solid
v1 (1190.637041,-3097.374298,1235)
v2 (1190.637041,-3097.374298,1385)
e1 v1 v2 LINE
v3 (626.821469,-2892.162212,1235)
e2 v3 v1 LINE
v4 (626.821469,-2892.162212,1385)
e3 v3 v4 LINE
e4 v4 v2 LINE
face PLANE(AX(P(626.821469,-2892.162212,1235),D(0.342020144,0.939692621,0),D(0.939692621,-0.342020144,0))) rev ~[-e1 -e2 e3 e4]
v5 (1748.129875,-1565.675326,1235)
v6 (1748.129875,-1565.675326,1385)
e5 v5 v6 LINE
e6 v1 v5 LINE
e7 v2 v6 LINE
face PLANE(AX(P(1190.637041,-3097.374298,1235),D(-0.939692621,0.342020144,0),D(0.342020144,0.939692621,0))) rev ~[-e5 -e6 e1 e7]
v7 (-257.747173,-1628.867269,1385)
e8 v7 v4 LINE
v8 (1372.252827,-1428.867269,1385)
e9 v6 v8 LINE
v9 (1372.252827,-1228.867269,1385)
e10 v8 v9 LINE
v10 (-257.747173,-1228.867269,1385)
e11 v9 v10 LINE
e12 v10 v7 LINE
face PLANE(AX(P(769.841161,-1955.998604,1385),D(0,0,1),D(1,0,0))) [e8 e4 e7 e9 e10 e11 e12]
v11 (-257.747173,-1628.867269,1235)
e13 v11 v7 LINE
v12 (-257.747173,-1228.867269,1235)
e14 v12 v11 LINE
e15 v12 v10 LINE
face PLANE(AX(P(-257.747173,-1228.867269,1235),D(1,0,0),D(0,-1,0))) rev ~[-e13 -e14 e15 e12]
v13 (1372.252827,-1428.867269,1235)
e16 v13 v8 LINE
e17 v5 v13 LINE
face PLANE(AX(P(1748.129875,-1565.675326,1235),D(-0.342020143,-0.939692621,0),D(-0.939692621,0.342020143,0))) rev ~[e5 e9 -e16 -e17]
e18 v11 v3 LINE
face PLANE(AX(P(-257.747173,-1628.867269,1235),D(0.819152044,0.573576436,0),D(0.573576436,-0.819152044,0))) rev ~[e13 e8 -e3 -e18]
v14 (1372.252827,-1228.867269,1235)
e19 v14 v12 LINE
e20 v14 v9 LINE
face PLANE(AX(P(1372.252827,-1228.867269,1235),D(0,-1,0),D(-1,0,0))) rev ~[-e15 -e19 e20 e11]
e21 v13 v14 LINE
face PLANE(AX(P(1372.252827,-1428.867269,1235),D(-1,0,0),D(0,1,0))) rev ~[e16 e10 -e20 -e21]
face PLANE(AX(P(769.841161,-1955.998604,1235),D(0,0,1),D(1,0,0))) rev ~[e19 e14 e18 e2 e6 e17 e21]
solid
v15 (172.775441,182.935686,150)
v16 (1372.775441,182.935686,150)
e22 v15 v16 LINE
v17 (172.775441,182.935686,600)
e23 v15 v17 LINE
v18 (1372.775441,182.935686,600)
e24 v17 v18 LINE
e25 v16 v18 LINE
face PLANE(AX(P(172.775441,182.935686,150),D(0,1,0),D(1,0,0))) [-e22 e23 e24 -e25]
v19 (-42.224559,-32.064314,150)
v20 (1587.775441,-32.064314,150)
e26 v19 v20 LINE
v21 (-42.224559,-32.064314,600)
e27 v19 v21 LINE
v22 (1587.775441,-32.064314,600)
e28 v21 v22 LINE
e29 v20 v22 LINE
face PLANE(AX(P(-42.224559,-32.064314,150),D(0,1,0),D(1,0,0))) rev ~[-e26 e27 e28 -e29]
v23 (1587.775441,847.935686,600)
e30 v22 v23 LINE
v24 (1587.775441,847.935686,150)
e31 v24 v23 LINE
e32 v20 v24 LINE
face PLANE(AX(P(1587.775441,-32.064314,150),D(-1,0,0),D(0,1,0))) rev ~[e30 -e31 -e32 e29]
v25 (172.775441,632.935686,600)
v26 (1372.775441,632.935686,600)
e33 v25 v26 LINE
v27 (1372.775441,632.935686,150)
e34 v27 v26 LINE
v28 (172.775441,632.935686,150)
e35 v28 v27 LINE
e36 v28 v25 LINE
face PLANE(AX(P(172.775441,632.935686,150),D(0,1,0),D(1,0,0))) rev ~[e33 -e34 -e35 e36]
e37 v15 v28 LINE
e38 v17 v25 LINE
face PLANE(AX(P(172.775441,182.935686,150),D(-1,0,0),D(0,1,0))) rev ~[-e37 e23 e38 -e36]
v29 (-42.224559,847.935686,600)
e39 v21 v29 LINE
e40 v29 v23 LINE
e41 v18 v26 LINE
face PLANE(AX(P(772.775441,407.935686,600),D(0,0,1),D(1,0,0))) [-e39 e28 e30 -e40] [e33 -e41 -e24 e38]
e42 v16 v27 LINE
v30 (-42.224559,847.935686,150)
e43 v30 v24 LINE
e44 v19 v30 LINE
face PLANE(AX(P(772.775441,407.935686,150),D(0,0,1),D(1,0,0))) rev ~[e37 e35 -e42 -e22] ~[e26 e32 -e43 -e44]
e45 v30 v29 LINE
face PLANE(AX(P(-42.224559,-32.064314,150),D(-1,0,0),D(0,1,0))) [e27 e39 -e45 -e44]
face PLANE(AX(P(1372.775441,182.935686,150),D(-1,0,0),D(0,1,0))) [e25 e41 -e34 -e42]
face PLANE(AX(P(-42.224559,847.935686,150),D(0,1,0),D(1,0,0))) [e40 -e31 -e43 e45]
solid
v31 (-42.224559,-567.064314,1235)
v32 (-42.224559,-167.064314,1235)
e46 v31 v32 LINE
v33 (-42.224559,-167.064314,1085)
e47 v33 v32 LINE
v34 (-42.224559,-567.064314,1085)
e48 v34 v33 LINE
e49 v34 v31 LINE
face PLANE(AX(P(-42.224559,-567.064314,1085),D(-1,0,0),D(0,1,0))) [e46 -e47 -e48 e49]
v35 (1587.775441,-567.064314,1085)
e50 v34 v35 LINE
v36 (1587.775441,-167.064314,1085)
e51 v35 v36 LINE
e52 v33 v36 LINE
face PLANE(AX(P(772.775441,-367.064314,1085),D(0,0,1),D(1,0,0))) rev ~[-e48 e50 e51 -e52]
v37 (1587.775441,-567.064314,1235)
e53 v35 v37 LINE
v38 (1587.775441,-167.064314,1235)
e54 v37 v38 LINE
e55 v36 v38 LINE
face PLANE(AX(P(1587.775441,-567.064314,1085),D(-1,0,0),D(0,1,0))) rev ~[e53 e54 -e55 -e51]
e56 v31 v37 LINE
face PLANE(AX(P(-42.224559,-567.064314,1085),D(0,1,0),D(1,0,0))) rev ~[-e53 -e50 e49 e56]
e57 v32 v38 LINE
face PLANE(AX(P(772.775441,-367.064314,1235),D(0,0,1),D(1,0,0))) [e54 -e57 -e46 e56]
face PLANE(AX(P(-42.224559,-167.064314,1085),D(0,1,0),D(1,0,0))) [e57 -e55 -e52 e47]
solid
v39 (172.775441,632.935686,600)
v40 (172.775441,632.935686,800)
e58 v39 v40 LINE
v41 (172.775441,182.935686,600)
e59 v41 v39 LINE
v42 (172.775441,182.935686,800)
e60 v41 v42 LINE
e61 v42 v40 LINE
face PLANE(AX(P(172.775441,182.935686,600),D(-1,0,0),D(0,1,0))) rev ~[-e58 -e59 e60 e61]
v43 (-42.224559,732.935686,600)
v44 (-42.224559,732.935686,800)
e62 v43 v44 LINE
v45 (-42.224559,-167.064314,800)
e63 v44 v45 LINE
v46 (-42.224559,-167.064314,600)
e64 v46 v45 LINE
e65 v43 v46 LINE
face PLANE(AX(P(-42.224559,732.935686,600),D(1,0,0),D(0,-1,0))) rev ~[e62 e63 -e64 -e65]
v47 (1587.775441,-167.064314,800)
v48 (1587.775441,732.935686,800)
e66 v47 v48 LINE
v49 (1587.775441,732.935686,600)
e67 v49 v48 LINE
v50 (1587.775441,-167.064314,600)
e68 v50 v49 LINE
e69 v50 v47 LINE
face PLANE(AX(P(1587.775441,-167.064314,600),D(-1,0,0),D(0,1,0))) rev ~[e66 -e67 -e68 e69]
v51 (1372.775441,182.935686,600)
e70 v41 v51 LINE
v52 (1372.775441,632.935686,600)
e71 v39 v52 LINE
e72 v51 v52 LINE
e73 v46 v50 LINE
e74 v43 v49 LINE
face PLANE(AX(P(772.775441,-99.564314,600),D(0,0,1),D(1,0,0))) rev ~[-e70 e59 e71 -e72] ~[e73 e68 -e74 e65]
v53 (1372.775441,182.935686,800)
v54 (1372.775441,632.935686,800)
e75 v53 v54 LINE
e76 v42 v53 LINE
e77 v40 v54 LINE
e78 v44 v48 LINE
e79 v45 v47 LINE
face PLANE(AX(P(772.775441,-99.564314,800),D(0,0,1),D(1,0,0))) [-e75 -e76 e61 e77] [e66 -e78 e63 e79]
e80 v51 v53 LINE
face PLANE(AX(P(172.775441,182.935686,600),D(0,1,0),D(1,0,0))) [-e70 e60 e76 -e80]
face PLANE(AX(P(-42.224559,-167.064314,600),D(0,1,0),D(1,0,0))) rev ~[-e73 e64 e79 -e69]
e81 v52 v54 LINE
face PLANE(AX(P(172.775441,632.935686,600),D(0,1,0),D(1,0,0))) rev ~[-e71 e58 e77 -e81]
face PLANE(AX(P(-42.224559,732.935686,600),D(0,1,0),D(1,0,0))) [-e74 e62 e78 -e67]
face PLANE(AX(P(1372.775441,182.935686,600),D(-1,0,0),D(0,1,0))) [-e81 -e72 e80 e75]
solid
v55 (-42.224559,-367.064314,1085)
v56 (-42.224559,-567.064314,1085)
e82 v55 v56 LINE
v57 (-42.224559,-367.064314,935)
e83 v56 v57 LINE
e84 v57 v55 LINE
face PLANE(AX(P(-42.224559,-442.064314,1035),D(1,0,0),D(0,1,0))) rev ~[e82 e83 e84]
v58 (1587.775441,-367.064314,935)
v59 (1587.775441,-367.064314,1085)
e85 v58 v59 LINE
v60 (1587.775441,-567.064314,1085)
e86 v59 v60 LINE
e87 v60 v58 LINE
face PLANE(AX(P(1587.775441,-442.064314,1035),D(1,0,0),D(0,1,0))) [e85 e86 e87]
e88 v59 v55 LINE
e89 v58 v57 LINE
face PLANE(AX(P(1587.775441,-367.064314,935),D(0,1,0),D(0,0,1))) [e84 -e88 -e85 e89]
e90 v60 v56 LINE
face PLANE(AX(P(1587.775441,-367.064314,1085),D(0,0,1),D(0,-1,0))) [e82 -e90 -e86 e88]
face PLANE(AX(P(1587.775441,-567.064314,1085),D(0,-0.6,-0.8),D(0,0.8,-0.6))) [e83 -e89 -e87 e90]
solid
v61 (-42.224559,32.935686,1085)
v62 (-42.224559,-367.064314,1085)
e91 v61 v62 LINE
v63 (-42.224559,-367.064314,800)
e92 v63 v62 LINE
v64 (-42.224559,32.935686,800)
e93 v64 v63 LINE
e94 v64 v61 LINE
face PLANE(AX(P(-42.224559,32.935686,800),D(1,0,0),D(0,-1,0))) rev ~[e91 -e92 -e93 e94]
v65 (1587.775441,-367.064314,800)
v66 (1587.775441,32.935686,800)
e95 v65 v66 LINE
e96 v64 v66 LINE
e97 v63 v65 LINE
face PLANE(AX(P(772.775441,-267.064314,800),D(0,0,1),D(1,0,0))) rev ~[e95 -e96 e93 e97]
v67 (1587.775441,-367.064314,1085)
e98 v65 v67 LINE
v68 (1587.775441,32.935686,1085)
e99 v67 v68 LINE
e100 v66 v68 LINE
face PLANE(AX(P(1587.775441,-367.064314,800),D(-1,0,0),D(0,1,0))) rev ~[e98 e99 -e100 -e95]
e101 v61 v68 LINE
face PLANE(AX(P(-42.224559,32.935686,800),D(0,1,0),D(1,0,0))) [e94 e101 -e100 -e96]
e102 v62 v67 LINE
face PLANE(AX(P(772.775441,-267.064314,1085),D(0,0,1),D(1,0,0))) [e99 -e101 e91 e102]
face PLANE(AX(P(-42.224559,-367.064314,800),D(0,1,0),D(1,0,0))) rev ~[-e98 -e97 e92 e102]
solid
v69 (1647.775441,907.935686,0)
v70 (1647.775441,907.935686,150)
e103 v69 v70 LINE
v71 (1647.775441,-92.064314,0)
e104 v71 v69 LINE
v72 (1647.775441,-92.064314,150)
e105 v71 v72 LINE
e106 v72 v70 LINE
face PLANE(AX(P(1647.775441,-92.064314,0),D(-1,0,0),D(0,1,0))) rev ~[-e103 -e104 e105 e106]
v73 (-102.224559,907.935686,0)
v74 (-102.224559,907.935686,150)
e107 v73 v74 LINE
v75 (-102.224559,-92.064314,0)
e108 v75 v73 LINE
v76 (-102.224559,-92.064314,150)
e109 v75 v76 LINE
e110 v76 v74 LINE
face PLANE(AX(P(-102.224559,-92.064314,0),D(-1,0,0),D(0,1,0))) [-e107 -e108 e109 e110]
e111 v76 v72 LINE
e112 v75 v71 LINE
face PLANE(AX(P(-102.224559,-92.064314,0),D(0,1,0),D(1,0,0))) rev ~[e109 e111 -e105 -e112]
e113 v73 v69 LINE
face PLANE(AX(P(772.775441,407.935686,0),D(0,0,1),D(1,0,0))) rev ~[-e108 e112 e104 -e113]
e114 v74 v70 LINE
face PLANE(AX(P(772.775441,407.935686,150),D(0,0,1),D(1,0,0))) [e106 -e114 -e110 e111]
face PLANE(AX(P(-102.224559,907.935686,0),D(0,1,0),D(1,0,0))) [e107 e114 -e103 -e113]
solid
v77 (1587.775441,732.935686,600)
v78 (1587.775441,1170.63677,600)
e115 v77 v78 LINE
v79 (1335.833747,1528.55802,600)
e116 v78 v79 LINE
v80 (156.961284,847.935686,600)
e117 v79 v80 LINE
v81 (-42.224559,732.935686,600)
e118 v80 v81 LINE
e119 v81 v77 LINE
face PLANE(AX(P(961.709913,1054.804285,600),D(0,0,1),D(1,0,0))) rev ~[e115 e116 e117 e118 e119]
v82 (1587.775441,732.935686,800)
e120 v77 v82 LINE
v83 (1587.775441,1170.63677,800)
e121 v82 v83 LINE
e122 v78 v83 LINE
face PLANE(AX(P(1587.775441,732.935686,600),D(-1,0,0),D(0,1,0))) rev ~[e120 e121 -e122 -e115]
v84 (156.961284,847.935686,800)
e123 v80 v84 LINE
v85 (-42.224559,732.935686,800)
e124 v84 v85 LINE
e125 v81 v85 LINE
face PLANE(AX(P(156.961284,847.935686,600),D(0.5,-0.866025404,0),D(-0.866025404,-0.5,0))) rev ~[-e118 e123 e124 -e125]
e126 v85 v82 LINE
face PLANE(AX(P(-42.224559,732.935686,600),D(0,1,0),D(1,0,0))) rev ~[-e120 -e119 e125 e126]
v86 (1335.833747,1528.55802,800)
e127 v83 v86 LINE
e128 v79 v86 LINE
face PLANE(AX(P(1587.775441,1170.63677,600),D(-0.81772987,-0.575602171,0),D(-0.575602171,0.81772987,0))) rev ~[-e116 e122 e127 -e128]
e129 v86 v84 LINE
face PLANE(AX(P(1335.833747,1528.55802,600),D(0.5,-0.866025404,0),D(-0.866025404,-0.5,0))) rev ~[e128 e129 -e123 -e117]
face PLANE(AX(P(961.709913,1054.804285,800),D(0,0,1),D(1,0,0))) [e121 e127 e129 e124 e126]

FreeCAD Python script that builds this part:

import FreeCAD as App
import Part
import Sketcher
Q = App.Units.Quantity

doc = App.newDocument("Part")
params = doc.addObject("Spreadsheet::Sheet", "Params")
for row, (alias, value) in enumerate([
    ("sketch1_width", "1750 mm"),
    ("sketch1_height", "1000 mm"),
    ("pad1_length", "150 mm"),
    ("sketch2_width", "1630 mm"),
    ("sketch2_width2", "1200 mm"),
    ("sketch2_height", "880 mm"),
    ("sketch2_height2", "450 mm"),
    ("pad2_length", "450 mm"),
    ("sketch3_width", "1630 mm"),
    ("sketch3_width2", "1200 mm"),
    ("sketch3_height", "900 mm"),
    ("sketch3_height2", "450 mm"),
    ("pad3_length", "200 mm"),
    ("sketch4_width", "1630 mm"),
    ("sketch4_height", "400 mm"),
    ("pad4_length", "285 mm"),
    ("sketch5_width", "1630 mm"),
    ("sketch5_height", "400 mm"),
    ("pad5_length", "150 mm"),
    ("sketch6_width", "200 mm"),
    ("sketch6_height", "150 mm"),
    ("pad6_length", "1630 mm"),
    ("sketch7_width", "1630 mm"),
    ("sketch7_width2", "200 mm"),
    ("pad7_length", "150 mm"),
    ("sketch8_width", "1615 mm"),
    ("sketch8_height", "3045 mm"),
    ("pad8_length", "150 mm"),
    ("sketch9_width", "1630 mm"),
    ("sketch9_length", "230 mm"),
    ("pad9_length", "200 mm"),
    ("sketch10_width", "1630 mm"),
    ("sketch10_height", "200 mm"),
    ("sketch10_height2", "400 mm"),
    ("sketch10_length", "600 mm"),
    ("sketch10_length2", "1630 mm"),
    ("pad10_length", "150 mm"),
], start=1):
    params.set(f"A{row}", alias)
    params.set(f"B{row}", "=" + value)
    params.setAlias(f"B{row}", alias)

body = doc.addObject("PartDesign::Body", "Body")

sketch1 = body.newObject("Sketcher::SketchObject", "Sketch")
sketch1.AttachmentSupport = (doc.getObject("XY_Plane"), [""])
sketch1.MapMode = "FlatFace"
sketch1.addGeometry(Part.LineSegment(App.Vector(-102.224559, 907.935686, 0), App.Vector(-102.224559, -92.064314, 0)), False)
sketch1.addGeometry(Part.LineSegment(App.Vector(-102.224559, -92.064314, 0), App.Vector(1647.775441, -92.064314, 0)), False)
sketch1.addGeometry(Part.LineSegment(App.Vector(1647.775441, -92.064314, 0), App.Vector(1647.775441, 907.935686, 0)), False)
sketch1.addGeometry(Part.LineSegment(App.Vector(1647.775441, 907.935686, 0), App.Vector(-102.224559, 907.935686, 0)), False)
sketch1.addConstraint(Sketcher.Constraint("Coincident", 0, 2, 1, 1))
sketch1.addConstraint(Sketcher.Constraint("Coincident", 1, 2, 2, 1))
sketch1.addConstraint(Sketcher.Constraint("Coincident", 2, 2, 3, 1))
sketch1.addConstraint(Sketcher.Constraint("Coincident", 3, 2, 0, 1))
sketch1.addConstraint(Sketcher.Constraint("Vertical", 0))
sketch1.addConstraint(Sketcher.Constraint("Horizontal", 1))
sketch1.addConstraint(Sketcher.Constraint("Vertical", 2))
sketch1.addConstraint(Sketcher.Constraint("Horizontal", 3))
sketch1.addConstraint(Sketcher.Constraint("DistanceX", 1, 1, 1, 2, 1750.0))
sketch1.addConstraint(Sketcher.Constraint("DistanceY", 0, 2, 0, 1, 1000.0))
sketch1.addConstraint(Sketcher.Constraint("DistanceX", 0, 2, -1, 1, 102.224559))
sketch1.addConstraint(Sketcher.Constraint("DistanceY", 0, 2, -1, 1, 92.064314))
sketch1.setExpression("Constraints[8]", "Params.sketch1_width")
sketch1.setExpression("Constraints[9]", "Params.sketch1_height")
pad1 = body.newObject("PartDesign::Pad", "Pad")
pad1.Profile = sketch1
pad1.setExpression("Length", "Params.pad1_length")
body2 = doc.addObject("PartDesign::Body", "Body001")

sketch2 = body2.newObject("Sketcher::SketchObject", "Sketch001")
sketch2.AttachmentSupport = (doc.getObject("XY_Plane001"), [""])
sketch2.MapMode = "FlatFace"
sketch2.AttachmentOffset = App.Placement(App.Vector(0, 0, 150), App.Rotation())
sketch2.addGeometry(Part.LineSegment(App.Vector(-42.224559, 847.935686, 0), App.Vector(-42.224559, -32.064314, 0)), False)
sketch2.addGeometry(Part.LineSegment(App.Vector(-42.224559, -32.064314, 0), App.Vector(1587.775441, -32.064314, 0)), False)
sketch2.addGeometry(Part.LineSegment(App.Vector(1587.775441, -32.064314, 0), App.Vector(1587.775441, 847.935686, 0)), False)
sketch2.addGeometry(Part.LineSegment(App.Vector(1587.775441, 847.935686, 0), App.Vector(-42.224559, 847.935686, 0)), False)
sketch2.addGeometry(Part.LineSegment(App.Vector(1372.775441, 182.935686, 0), App.Vector(172.775441, 182.935686, 0)), False)
sketch2.addGeometry(Part.LineSegment(App.Vector(172.775441, 182.935686, 0), App.Vector(172.775441, 632.935686, 0)), False)
sketch2.addGeometry(Part.LineSegment(App.Vector(172.775441, 632.935686, 0), App.Vector(1372.775441, 632.935686, 0)), False)
sketch2.addGeometry(Part.LineSegment(App.Vector(1372.775441, 632.935686, 0), App.Vector(1372.775441, 182.935686, 0)), False)
sketch2.addConstraint(Sketcher.Constraint("Coincident", 0, 2, 1, 1))
sketch2.addConstraint(Sketcher.Constraint("Coincident", 1, 2, 2, 1))
sketch2.addConstraint(Sketcher.Constraint("Coincident", 2, 2, 3, 1))
sketch2.addConstraint(Sketcher.Constraint("Coincident", 3, 2, 0, 1))
sketch2.addConstraint(Sketcher.Constraint("Coincident", 4, 2, 5, 1))
sketch2.addConstraint(Sketcher.Constraint("Coincident", 5, 2, 6, 1))
sketch2.addConstraint(Sketcher.Constraint("Coincident", 6, 2, 7, 1))
sketch2.addConstraint(Sketcher.Constraint("Coincident", 7, 2, 4, 1))
sketch2.addConstraint(Sketcher.Constraint("Vertical", 0))
sketch2.addConstraint(Sketcher.Constraint("Horizontal", 1))
sketch2.addConstraint(Sketcher.Constraint("Vertical", 2))
sketch2.addConstraint(Sketcher.Constraint("Horizontal", 3))
sketch2.addConstraint(Sketcher.Constraint("Horizontal", 4))
sketch2.addConstraint(Sketcher.Constraint("Vertical", 5))
sketch2.addConstraint(Sketcher.Constraint("Horizontal", 6))
sketch2.addConstraint(Sketcher.Constraint("Vertical", 7))
sketch2.addConstraint(Sketcher.Constraint("DistanceX", 1, 1, 1, 2, 1630.0))
sketch2.addConstraint(Sketcher.Constraint("DistanceX", 4, 2, 4, 1, 1200.0))
sketch2.addConstraint(Sketcher.Constraint("DistanceY", 0, 2, 0, 1, 880.0))
sketch2.addConstraint(Sketcher.Constraint("DistanceY", 5, 1, 5, 2, 450.0))
sketch2.addConstraint(Sketcher.Constraint("DistanceX", 0, 2, 4, 2, 215.0))
sketch2.addConstraint(Sketcher.Constraint("DistanceY", 0, 2, 4, 2, 215.0))
sketch2.addConstraint(Sketcher.Constraint("DistanceX", 0, 2, -1, 1, 42.224559))
sketch2.addConstraint(Sketcher.Constraint("DistanceY", 0, 2, -1, 1, 32.064314))
sketch2.setExpression("Constraints[16]", "Params.sketch2_width")
sketch2.setExpression("Constraints[17]", "Params.sketch2_width2")
sketch2.setExpression("Constraints[18]", "Params.sketch2_height")
sketch2.setExpression("Constraints[19]", "Params.sketch2_height2")
pad2 = body2.newObject("PartDesign::Pad", "Pad001")
pad2.Profile = sketch2
pad2.setExpression("Length", "Params.pad2_length")
body3 = doc.addObject("PartDesign::Body", "Body002")

sketch3 = body3.newObject("Sketcher::SketchObject", "Sketch002")
sketch3.AttachmentSupport = (doc.getObject("XY_Plane002"), [""])
sketch3.MapMode = "FlatFace"
sketch3.AttachmentOffset = App.Placement(App.Vector(0, 0, 600), App.Rotation())
sketch3.addGeometry(Part.LineSegment(App.Vector(-42.224559, -167.064314, 0), App.Vector(1587.775441, -167.064314, 0)), False)
sketch3.addGeometry(Part.LineSegment(App.Vector(1587.775441, -167.064314, 0), App.Vector(1587.775441, 732.935686, 0)), False)
sketch3.addGeometry(Part.LineSegment(App.Vector(1587.775441, 732.935686, 0), App.Vector(-42.224559, 732.935686, 0)), False)
sketch3.addGeometry(Part.LineSegment(App.Vector(-42.224559, 732.935686, 0), App.Vector(-42.224559, -167.064314, 0)), False)
sketch3.addGeometry(Part.LineSegment(App.Vector(1372.775441, 182.935686, 0), App.Vector(172.775441, 182.935686, 0)), False)
sketch3.addGeometry(Part.LineSegment(App.Vector(172.775441, 182.935686, 0), App.Vector(172.775441, 632.935686, 0)), False)
sketch3.addGeometry(Part.LineSegment(App.Vector(172.775441, 632.935686, 0), App.Vector(1372.775441, 632.935686, 0)), False)
sketch3.addGeometry(Part.LineSegment(App.Vector(1372.775441, 632.935686, 0), App.Vector(1372.775441, 182.935686, 0)), False)
sketch3.addConstraint(Sketcher.Constraint("Coincident", 0, 2, 1, 1))
sketch3.addConstraint(Sketcher.Constraint("Coincident", 1, 2, 2, 1))
sketch3.addConstraint(Sketcher.Constraint("Coincident", 2, 2, 3, 1))
sketch3.addConstraint(Sketcher.Constraint("Coincident", 3, 2, 0, 1))
sketch3.addConstraint(Sketcher.Constraint("Coincident", 4, 2, 5, 1))
sketch3.addConstraint(Sketcher.Constraint("Coincident", 5, 2, 6, 1))
sketch3.addConstraint(Sketcher.Constraint("Coincident", 6, 2, 7, 1))
sketch3.addConstraint(Sketcher.Constraint("Coincident", 7, 2, 4, 1))
sketch3.addConstraint(Sketcher.Constraint("Horizontal", 0))
sketch3.addConstraint(Sketcher.Constraint("Vertical", 1))
sketch3.addConstraint(Sketcher.Constraint("Horizontal", 2))
sketch3.addConstraint(Sketcher.Constraint("Vertical", 3))
sketch3.addConstraint(Sketcher.Constraint("Horizontal", 4))
sketch3.addConstraint(Sketcher.Constraint("Vertical", 5))
sketch3.addConstraint(Sketcher.Constraint("Horizontal", 6))
sketch3.addConstraint(Sketcher.Constraint("Vertical", 7))
sketch3.addConstraint(Sketcher.Constraint("DistanceX", 0, 1, 0, 2, 1630.0))
sketch3.addConstraint(Sketcher.Constraint("DistanceX", 4, 2, 4, 1, 1200.0))
sketch3.addConstraint(Sketcher.Constraint("DistanceY", 1, 1, 1, 2, 900.0))
sketch3.addConstraint(Sketcher.Constraint("DistanceY", 5, 1, 5, 2, 450.0))
sketch3.addConstraint(Sketcher.Constraint("DistanceX", 3, 2, 4, 2, 215.0))
sketch3.addConstraint(Sketcher.Constraint("DistanceY", 3, 2, 4, 2, 350.0))
sketch3.addConstraint(Sketcher.Constraint("DistanceX", -1, 1, 0, 2, 1587.775441))
sketch3.addConstraint(Sketcher.Constraint("DistanceY", 0, 2, -1, 1, 167.064314))
sketch3.setExpression("Constraints[16]", "Params.sketch3_width")
sketch3.setExpression("Constraints[17]", "Params.sketch3_width2")
sketch3.setExpression("Constraints[18]", "Params.sketch3_height")
sketch3.setExpression("Constraints[19]", "Params.sketch3_height2")
pad3 = body3.newObject("PartDesign::Pad", "Pad002")
pad3.Profile = sketch3
pad3.setExpression("Length", "Params.pad3_length")
body4 = doc.addObject("PartDesign::Body", "Body003")

sketch4 = body4.newObject("Sketcher::SketchObject", "Sketch003")
sketch4.AttachmentSupport = (doc.getObject("XY_Plane003"), [""])
sketch4.MapMode = "FlatFace"
sketch4.AttachmentOffset = App.Placement(App.Vector(0, 0, 800), App.Rotation())
sketch4.addGeometry(Part.LineSegment(App.Vector(-42.224559, -367.064314, 0), App.Vector(1587.775441, -367.064314, 0)), False)
sketch4.addGeometry(Part.LineSegment(App.Vector(1587.775441, -367.064314, 0), App.Vector(1587.775441, 32.935686, 0)), False)
sketch4.addGeometry(Part.LineSegment(App.Vector(1587.775441, 32.935686, 0), App.Vector(-42.224559, 32.935686, 0)), False)
sketch4.addGeometry(Part.LineSegment(App.Vector(-42.224559, 32.935686, 0), App.Vector(-42.224559, -367.064314, 0)), False)
sketch4.addConstraint(Sketcher.Constraint("Coincident", 0, 2, 1, 1))
sketch4.addConstraint(Sketcher.Constraint("Coincident", 1, 2, 2, 1))
sketch4.addConstraint(Sketcher.Constraint("Coincident", 2, 2, 3, 1))
sketch4.addConstraint(Sketcher.Constraint("Coincident", 3, 2, 0, 1))
sketch4.addConstraint(Sketcher.Constraint("Horizontal", 0))
sketch4.addConstraint(Sketcher.Constraint("Vertical", 1))
sketch4.addConstraint(Sketcher.Constraint("Horizontal", 2))
sketch4.addConstraint(Sketcher.Constraint("Vertical", 3))
sketch4.addConstraint(Sketcher.Constraint("DistanceX", 0, 1, 0, 2, 1630.0))
sketch4.addConstraint(Sketcher.Constraint("DistanceY", 1, 1, 1, 2, 400.0))
sketch4.addConstraint(Sketcher.Constraint("DistanceX", -1, 1, 0, 2, 1587.775441))
sketch4.addConstraint(Sketcher.Constraint("DistanceY", 0, 2, -1, 1, 367.064314))
sketch4.setExpression("Constraints[8]", "Params.sketch4_width")
sketch4.setExpression("Constraints[9]", "Params.sketch4_height")
pad4 = body4.newObject("PartDesign::Pad", "Pad003")
pad4.Profile = sketch4
pad4.setExpression("Length", "Params.pad4_length")
body5 = doc.addObject("PartDesign::Body", "Body004")

sketch5 = body5.newObject("Sketcher::SketchObject", "Sketch004")
sketch5.AttachmentSupport = (doc.getObject("XY_Plane004"), [""])
sketch5.MapMode = "FlatFace"
sketch5.AttachmentOffset = App.Placement(App.Vector(0, 0, 1085), App.Rotation())
sketch5.addGeometry(Part.LineSegment(App.Vector(-42.224559, -167.064314, 0), App.Vector(-42.224559, -567.064314, 0)), False)
sketch5.addGeometry(Part.LineSegment(App.Vector(-42.224559, -567.064314, 0), App.Vector(1587.775441, -567.064314, 0)), False)
sketch5.addGeometry(Part.LineSegment(App.Vector(1587.775441, -567.064314, 0), App.Vector(1587.775441, -167.064314, 0)), False)
sketch5.addGeometry(Part.LineSegment(App.Vector(1587.775441, -167.064314, 0), App.Vector(-42.224559, -167.064314, 0)), False)
sketch5.addConstraint(Sketcher.Constraint("Coincident", 0, 2, 1, 1))
sketch5.addConstraint(Sketcher.Constraint("Coincident", 1, 2, 2, 1))
sketch5.addConstraint(Sketcher.Constraint("Coincident", 2, 2, 3, 1))
sketch5.addConstraint(Sketcher.Constraint("Coincident", 3, 2, 0, 1))
sketch5.addConstraint(Sketcher.Constraint("Vertical", 0))
sketch5.addConstraint(Sketcher.Constraint("Horizontal", 1))
sketch5.addConstraint(Sketcher.Constraint("Vertical", 2))
sketch5.addConstraint(Sketcher.Constraint("Horizontal", 3))
sketch5.addConstraint(Sketcher.Constraint("DistanceX", 1, 1, 1, 2, 1630.0))
sketch5.addConstraint(Sketcher.Constraint("DistanceY", 0, 2, 0, 1, 400.0))
sketch5.addConstraint(Sketcher.Constraint("DistanceX", 0, 2, -1, 1, 42.224559))
sketch5.addConstraint(Sketcher.Constraint("DistanceY", 0, 2, -1, 1, 567.064314))
sketch5.setExpression("Constraints[8]", "Params.sketch5_width")
sketch5.setExpression("Constraints[9]", "Params.sketch5_height")
pad5 = body5.newObject("PartDesign::Pad", "Pad004")
pad5.Profile = sketch5
pad5.setExpression("Length", "Params.pad5_length")
body6 = doc.addObject("PartDesign::Body", "Body005")

sketch6 = body6.newObject("Sketcher::SketchObject", "Sketch005")
sketch6.AttachmentSupport = (doc.getObject("YZ_Plane005"), [""])
sketch6.MapMode = "FlatFace"
sketch6.AttachmentOffset = App.Placement(App.Vector(0, 0, 1587.775441), App.Rotation())
sketch6.addGeometry(Part.LineSegment(App.Vector(-367.064314, 935, 0), App.Vector(-367.064314, 1085, 0)), False)
sketch6.addGeometry(Part.LineSegment(App.Vector(-367.064314, 1085, 0), App.Vector(-567.064314, 1085, 0)), False)
sketch6.addGeometry(Part.LineSegment(App.Vector(-567.064314, 1085, 0), App.Vector(-367.064314, 935, 0)), False)
sketch6.addConstraint(Sketcher.Constraint("Coincident", 0, 2, 1, 1))
sketch6.addConstraint(Sketcher.Constraint("Coincident", 1, 2, 2, 1))
sketch6.addConstraint(Sketcher.Constraint("Coincident", 2, 2, 0, 1))
sketch6.addConstraint(Sketcher.Constraint("Vertical", 0))
sketch6.addConstraint(Sketcher.Constraint("Horizontal", 1))
sketch6.addConstraint(Sketcher.Constraint("DistanceX", 1, 2, 1, 1, 200.0))
sketch6.addConstraint(Sketcher.Constraint("DistanceY", 0, 1, 0, 2, 150.0))
sketch6.addConstraint(Sketcher.Constraint("DistanceY", -1, 1, 0, 2, 1085.0))
sketch6.addConstraint(Sketcher.Constraint("DistanceX", 0, 2, -1, 1, 367.064314))
sketch6.setExpression("Constraints[5]", "Params.sketch6_width")
sketch6.setExpression("Constraints[6]", "Params.sketch6_height")
pad6 = body6.newObject("PartDesign::Pad", "Pad005")
pad6.Profile = sketch6
pad6.setExpression("Length", "Params.pad6_length")
pad6.Reversed = True
body7 = doc.addObject("PartDesign::Body", "Body006")

sketch7 = body7.newObject("Sketcher::SketchObject", "Sketch006")
sketch7.AttachmentSupport = (doc.getObject("XY_Plane006"), [""])
sketch7.MapMode = "FlatFace"
sketch7.AttachmentOffset = App.Placement(App.Vector(0, 0, 1235), App.Rotation())
sketch7.addGeometry(Part.LineSegment(App.Vector(1759.989725, -1001.661468, 0), App.Vector(129.989725, -1001.661468, 0)), False)
sketch7.addGeometry(Part.LineSegment(App.Vector(129.989725, -1001.661468, 0), App.Vector(129.989725, -1201.661468, 0)), False)
sketch7.addGeometry(Part.LineSegment(App.Vector(129.989725, -1201.661468, 0), App.Vector(-70.010275, -1201.661468, 0)), False)
sketch7.addGeometry(Part.LineSegment(App.Vector(-70.010275, -1201.661468, 0), App.Vector(-70.010275, -2831.661468, 0)), False)
sketch7.addGeometry(Part.LineSegment(App.Vector(-70.010275, -2831.661468, 0), App.Vector(1759.989725, -2831.661468, 0)), False)
sketch7.addGeometry(Part.LineSegment(App.Vector(1759.989725, -2831.661468, 0), App.Vector(1759.989725, -1001.661468, 0)), False)
sketch7.addConstraint(Sketcher.Constraint("Coincident", 0, 2, 1, 1))
sketch7.addConstraint(Sketcher.Constraint("Coincident", 1, 2, 2, 1))
sketch7.addConstraint(Sketcher.Constraint("Coincident", 2, 2, 3, 1))
sketch7.addConstraint(Sketcher.Constraint("Coincident", 3, 2, 4, 1))
sketch7.addConstraint(Sketcher.Constraint("Coincident", 4, 2, 5, 1))
sketch7.addConstraint(Sketcher.Constraint("Coincident", 5, 2, 0, 1))
sketch7.addConstraint(Sketcher.Constraint("Horizontal", 0))
sketch7.addConstraint(Sketcher.Constraint("Vertical", 1))
sketch7.addConstraint(Sketcher.Constraint("Horizontal", 2))
sketch7.addConstraint(Sketcher.Constraint("Vertical", 3))
sketch7.addConstraint(Sketcher.Constraint("Horizontal", 4))
sketch7.addConstraint(Sketcher.Constraint("Vertical", 5))
sketch7.addConstraint(Sketcher.Constraint("Equal", 2, 1))
sketch7.addConstraint(Sketcher.Constraint("Equal", 0, 3))
sketch7.addConstraint(Sketcher.Constraint("DistanceX", 0, 2, 0, 1, 1630.0))
sketch7.addConstraint(Sketcher.Constraint("DistanceX", 2, 2, 2, 1, 200.0))
sketch7.addConstraint(Sketcher.Constraint("DistanceY", 0, 2, -1, 1, 1001.661468))
sketch7.addConstraint(Sketcher.Constraint("DistanceX", -1, 1, 0, 2, 129.989725))
sketch7.setExpression("Constraints[14]", "Params.sketch7_width")
sketch7.setExpression("Constraints[15]", "Params.sketch7_width2")
pad7 = body7.newObject("PartDesign::Pad", "Pad006")
pad7.Profile = sketch7
pad7.setExpression("Length", "Params.pad7_length")
body8 = doc.addObject("PartDesign::Body", "Body007")

sketch8 = body8.newObject("Sketcher::SketchObject", "Sketch007")
sketch8.AttachmentSupport = (doc.getObject("XY_Plane007"), [""])
sketch8.MapMode = "FlatFace"
sketch8.AttachmentOffset = App.Placement(App.Vector(0, 0, 1385), App.Rotation())
sketch8.addGeometry(Part.LineSegment(App.Vector(-2078.78089, -1746.240692, 0), App.Vector(-2078.78089, -4791.240692, 0)), False)
sketch8.addGeometry(Part.LineSegment(App.Vector(-2078.78089, -4791.240692, 0), App.Vector(-463.78089, -4791.240692, 0)), False)
sketch8.addGeometry(Part.LineSegment(App.Vector(-463.78089, -4791.240692, 0), App.Vector(-463.78089, -1746.240692, 0)), False)
sketch8.addGeometry(Part.LineSegment(App.Vector(-463.78089, -1746.240692, 0), App.Vector(-2078.78089, -1746.240692, 0)), False)
sketch8.addConstraint(Sketcher.Constraint("Coincident", 0, 2, 1, 1))
sketch8.addConstraint(Sketcher.Constraint("Coincident", 1, 2, 2, 1))
sketch8.addConstraint(Sketcher.Constraint("Coincident", 2, 2, 3, 1))
sketch8.addConstraint(Sketcher.Constraint("Coincident", 3, 2, 0, 1))
sketch8.addConstraint(Sketcher.Constraint("Vertical", 0))
sketch8.addConstraint(Sketcher.Constraint("Horizontal", 1))
sketch8.addConstraint(Sketcher.Constraint("Vertical", 2))
sketch8.addConstraint(Sketcher.Constraint("Horizontal", 3))
sketch8.addConstraint(Sketcher.Constraint("DistanceX", 1, 1, 1, 2, 1615.0))
sketch8.addConstraint(Sketcher.Constraint("DistanceY", 0, 2, 0, 1, 3045.0))
sketch8.addConstraint(Sketcher.Constraint("DistanceX", 0, 2, -1, 1, 2078.78089))
sketch8.addConstraint(Sketcher.Constraint("DistanceY", 2, 2, -1, 1, 1746.240692))
sketch8.setExpression("Constraints[8]", "Params.sketch8_width")
sketch8.setExpression("Constraints[9]", "Params.sketch8_height")
pad8 = body8.newObject("PartDesign::Pad", "Pad007")
pad8.Profile = sketch8
pad8.setExpression("Length", "Params.pad8_length")
body9 = doc.addObject("PartDesign::Body", "Body008")

sketch9 = body9.newObject("Sketcher::SketchObject", "Sketch008")
sketch9.AttachmentSupport = (doc.getObject("XY_Plane008"), [""])
sketch9.MapMode = "FlatFace"
sketch9.AttachmentOffset = App.Placement(App.Vector(0, 0, 600), App.Rotation())
sketch9.addGeometry(Part.LineSegment(App.Vector(1587.775441, 1170.63677, 0), App.Vector(1335.833747, 1528.55802, 0)), False)
sketch9.addGeometry(Part.LineSegment(App.Vector(1335.833747, 1528.55802, 0), App.Vector(156.961284, 847.935686, 0)), False)
sketch9.addGeometry(Part.LineSegment(App.Vector(156.961284, 847.935686, 0), App.Vector(-42.224559, 732.935686, 0)), False)
sketch9.addGeometry(Part.LineSegment(App.Vector(-42.224559, 732.935686, 0), App.Vector(1587.775441, 732.935686, 0)), False)
sketch9.addGeometry(Part.LineSegment(App.Vector(1587.775441, 732.935686, 0), App.Vector(1587.775441, 1170.63677, 0)), False)
sketch9.addConstraint(Sketcher.Constraint("Coincident", 0, 2, 1, 1))
sketch9.addConstraint(Sketcher.Constraint("Coincident", 1, 2, 2, 1))
sketch9.addConstraint(Sketcher.Constraint("Coincident", 2, 2, 3, 1))
sketch9.addConstraint(Sketcher.Constraint("Coincident", 3, 2, 4, 1))
sketch9.addConstraint(Sketcher.Constraint("Coincident", 4, 2, 0, 1))
sketch9.addConstraint(Sketcher.Constraint("Horizontal", 3))
sketch9.addConstraint(Sketcher.Constraint("Vertical", 4))
sketch9.addConstraint(Sketcher.Constraint("Parallel", 1, 2))
sketch9.addConstraint(Sketcher.Constraint("DistanceX", 3, 1, 3, 2, 1630.0))
sketch9.addConstraint(Sketcher.Constraint("Angle", 1, Q("-150 deg")))
sketch9.addConstraint(Sketcher.Constraint("Distance", 2, 230.0))
sketch9.addConstraint(Sketcher.Constraint("DistanceY", 4, 1, 4, 2, 437.701084))
sketch9.addConstraint(Sketcher.Constraint("DistanceY", -1, 1, 0, 2, 1528.55802))
sketch9.addConstraint(Sketcher.Constraint("DistanceX", 2, 2, -1, 1, 42.224559))
sketch9.addConstraint(Sketcher.Constraint("DistanceY", -1, 1, 4, 2, 1170.63677))
sketch9.setExpression("Constraints[8]", "Params.sketch9_width")
sketch9.setExpression("Constraints[10]", "Params.sketch9_length")
pad9 = body9.newObject("PartDesign::Pad", "Pad008")
pad9.Profile = sketch9
pad9.setExpression("Length", "Params.pad9_length")
body10 = doc.addObject("PartDesign::Body", "Body009")

sketch10 = body10.newObject("Sketcher::SketchObject", "Sketch009")
sketch10.AttachmentSupport = (doc.getObject("XY_Plane009"), [""])
sketch10.MapMode = "FlatFace"
sketch10.AttachmentOffset = App.Placement(App.Vector(0, 0, 1235), App.Rotation())
sketch10.addGeometry(Part.LineSegment(App.Vector(1372.252827, -1428.867269, 0), App.Vector(1372.252827, -1228.867269, 0)), False)
sketch10.addGeometry(Part.LineSegment(App.Vector(1372.252827, -1228.867269, 0), App.Vector(-257.747173, -1228.867269, 0)), False)
sketch10.addGeometry(Part.LineSegment(App.Vector(-257.747173, -1228.867269, 0), App.Vector(-257.747173, -1628.867269, 0)), False)
sketch10.addGeometry(Part.LineSegment(App.Vector(-257.747173, -1628.867269, 0), App.Vector(626.821469, -2892.162212, 0)), False)
sketch10.addGeometry(Part.LineSegment(App.Vector(626.821469, -2892.162212, 0), App.Vector(1190.637041, -3097.374298, 0)), False)
sketch10.addGeometry(Part.LineSegment(App.Vector(1190.637041, -3097.374298, 0), App.Vector(1748.129875, -1565.675326, 0)), False)
sketch10.addGeometry(Part.LineSegment(App.Vector(1748.129875, -1565.675326, 0), App.Vector(1372.252827, -1428.867269, 0)), False)
sketch10.addConstraint(Sketcher.Constraint("Coincident", 0, 2, 1, 1))
sketch10.addConstraint(Sketcher.Constraint("Coincident", 1, 2, 2, 1))
sketch10.addConstraint(Sketcher.Constraint("Coincident", 2, 2, 3, 1))
sketch10.addConstraint(Sketcher.Constraint("Coincident", 3, 2, 4, 1))
sketch10.addConstraint(Sketcher.Constraint("Coincident", 4, 2, 5, 1))
sketch10.addConstraint(Sketcher.Constraint("Coincident", 5, 2, 6, 1))
sketch10.addConstraint(Sketcher.Constraint("Coincident", 6, 2, 0, 1))
sketch10.addConstraint(Sketcher.Constraint("Vertical", 0))
sketch10.addConstraint(Sketcher.Constraint("Horizontal", 1))
sketch10.addConstraint(Sketcher.Constraint("Vertical", 2))
sketch10.addConstraint(Sketcher.Constraint("Perpendicular", 4, 5))
sketch10.addConstraint(Sketcher.Constraint("Perpendicular", 5, 6))
sketch10.addConstraint(Sketcher.Constraint("DistanceX", 1, 2, 1, 1, 1630.0))
sketch10.addConstraint(Sketcher.Constraint("DistanceY", 0, 1, 0, 2, 200.0))
sketch10.addConstraint(Sketcher.Constraint("DistanceY", 2, 2, 2, 1, 400.0))
sketch10.addConstraint(Sketcher.Constraint("Angle", 3, Q("-55 deg")))
sketch10.addConstraint(Sketcher.Constraint("Angle", 4, Q("-20 deg")))
sketch10.addConstraint(Sketcher.Constraint("Distance", 4, 600.0))
sketch10.addConstraint(Sketcher.Constraint("Distance", 5, 1630.0))
sketch10.addConstraint(Sketcher.Constraint("DistanceY", 4, 2, -1, 1, 3097.374298))
sketch10.addConstraint(Sketcher.Constraint("DistanceX", -1, 1, 3, 2, 626.821469))
sketch10.setExpression("Constraints[12]", "Params.sketch10_width")
sketch10.setExpression("Constraints[13]", "Params.sketch10_height")
sketch10.setExpression("Constraints[14]", "Params.sketch10_height2")
sketch10.setExpression("Constraints[17]", "Params.sketch10_length")
sketch10.setExpression("Constraints[18]", "Params.sketch10_length2")
pad10 = body10.newObject("PartDesign::Pad", "Pad009")
pad10.Profile = sketch10
pad10.setExpression("Length", "Params.pad10_length")
body7.Visibility = False
body8.Visibility = False

doc.recompute()
